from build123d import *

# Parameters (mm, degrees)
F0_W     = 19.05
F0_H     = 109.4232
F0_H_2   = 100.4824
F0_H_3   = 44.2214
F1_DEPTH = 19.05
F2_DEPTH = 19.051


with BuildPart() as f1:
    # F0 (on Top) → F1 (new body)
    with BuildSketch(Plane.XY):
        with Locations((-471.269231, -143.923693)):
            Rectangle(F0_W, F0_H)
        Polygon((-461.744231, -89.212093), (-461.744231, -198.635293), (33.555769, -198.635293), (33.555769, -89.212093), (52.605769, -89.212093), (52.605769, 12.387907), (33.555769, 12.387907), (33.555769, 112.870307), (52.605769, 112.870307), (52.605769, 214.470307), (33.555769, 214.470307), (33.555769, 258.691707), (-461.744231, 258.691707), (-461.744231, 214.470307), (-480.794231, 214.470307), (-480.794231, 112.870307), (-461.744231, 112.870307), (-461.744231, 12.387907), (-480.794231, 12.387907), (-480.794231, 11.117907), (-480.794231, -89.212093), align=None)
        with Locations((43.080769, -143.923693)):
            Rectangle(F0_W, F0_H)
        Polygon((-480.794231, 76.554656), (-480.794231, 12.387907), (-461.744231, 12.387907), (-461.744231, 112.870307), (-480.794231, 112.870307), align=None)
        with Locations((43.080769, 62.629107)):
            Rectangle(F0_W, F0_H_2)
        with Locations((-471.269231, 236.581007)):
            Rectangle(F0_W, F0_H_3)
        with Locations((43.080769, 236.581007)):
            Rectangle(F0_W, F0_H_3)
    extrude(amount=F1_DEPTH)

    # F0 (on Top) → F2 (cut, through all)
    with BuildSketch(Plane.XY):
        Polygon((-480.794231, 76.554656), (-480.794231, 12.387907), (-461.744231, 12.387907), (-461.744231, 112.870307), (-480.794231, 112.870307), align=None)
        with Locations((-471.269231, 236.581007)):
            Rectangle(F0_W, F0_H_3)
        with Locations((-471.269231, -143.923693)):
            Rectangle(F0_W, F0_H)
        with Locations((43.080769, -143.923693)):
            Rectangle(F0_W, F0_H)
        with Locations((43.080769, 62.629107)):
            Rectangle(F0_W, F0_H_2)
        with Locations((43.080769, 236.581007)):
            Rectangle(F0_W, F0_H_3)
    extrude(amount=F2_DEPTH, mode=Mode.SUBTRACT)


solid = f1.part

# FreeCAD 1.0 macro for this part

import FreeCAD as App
import Part
import Sketcher
from FreeCAD import Vector
Q = App.Units.Quantity

doc = App.newDocument("Part")
body = doc.addObject("PartDesign::Body", "Body")

sketch1 = body.newObject("Sketcher::SketchObject", "Sketch")
sketch1.AttachmentSupport = (doc.getObject("XY_Plane"), [""])
sketch1.MapMode = "FlatFace"
sketch1.addGeometry([
    Part.LineSegment(Vector(-480.794231, -198.635293, 0), Vector(52.605769, -198.635293, 0)),
    Part.LineSegment(Vector(52.605769, -198.635293, 0), Vector(52.605769, 258.691707, 0)),
    Part.LineSegment(Vector(52.605769, 258.691707, 0), Vector(-480.794231, 258.691707, 0)),
    Part.LineSegment(Vector(-480.794231, 258.691707, 0), Vector(-480.794231, -198.635293, 0)),
], False)
sketch1.addConstraint([
    Sketcher.Constraint("Coincident", 0, 2, 1, 1),
    Sketcher.Constraint("Coincident", 1, 2, 2, 1),
    Sketcher.Constraint("Coincident", 2, 2, 3, 1),
    Sketcher.Constraint("Coincident", 3, 2, 0, 1),
    Sketcher.Constraint("Horizontal", 0),
    Sketcher.Constraint("Vertical", 1),
    Sketcher.Constraint("Horizontal", 2),
    Sketcher.Constraint("Vertical", 3),
    Sketcher.Constraint("DistanceX", 0, 1, 0, 2, Q("21 in")),
    Sketcher.Constraint("DistanceY", 1, 1, 1, 2, Q("18.005 in")),
    Sketcher.Constraint("DistanceX", -1, 1, 0, 2, 52.605769),
    Sketcher.Constraint("DistanceY", 0, 2, -1, 1, 198.635293),
])
pad1 = body.newObject("PartDesign::Pad", "Pad")
pad1.Profile = sketch1
pad1.Length = Q("0.75 in")

sketch2 = body.newObject("Sketcher::SketchObject", "Sketch001")
sketch2.AttachmentSupport = (doc.getObject("XY_Plane"), [""])
sketch2.MapMode = "FlatFace"
sketch2.addGeometry([
    Part.LineSegment(Vector(-480.794231, 12.387907, 0), Vector(-461.744231, 12.387907, 0)),
    Part.LineSegment(Vector(-461.744231, 12.387907, 0), Vector(-461.744231, 112.870307, 0)),
    Part.LineSegment(Vector(-461.744231, 112.870307, 0), Vector(-480.794231, 112.870307, 0)),
    Part.LineSegment(Vector(-480.794231, 112.870307, 0), Vector(-480.794231, 12.387907, 0)),
    Part.LineSegment(Vector(-480.794231, 258.691707, 0), Vector(-480.794231, 214.470307, 0)),
    Part.LineSegment(Vector(-480.794231, 214.470307, 0), Vector(-461.744231, 214.470307, 0)),
    Part.LineSegment(Vector(-461.744231, 214.470307, 0), Vector(-461.744231, 258.691707, 0)),
    Part.LineSegment(Vector(-461.744231, 258.691707, 0), Vector(-480.794231, 258.691707, 0)),
    Part.LineSegment(Vector(-480.794231, -89.212093, 0), Vector(-480.794231, -198.635293, 0)),
    Part.LineSegment(Vector(-480.794231, -198.635293, 0), Vector(-461.744231, -198.635293, 0)),
    Part.LineSegment(Vector(-461.744231, -198.635293, 0), Vector(-461.744231, -89.212093, 0)),
    Part.LineSegment(Vector(-461.744231, -89.212093, 0), Vector(-480.794231, -89.212093, 0)),
    Part.LineSegment(Vector(33.555769, -89.212093, 0), Vector(33.555769, -198.635293, 0)),
    Part.LineSegment(Vector(33.555769, -198.635293, 0), Vector(52.605769, -198.635293, 0)),
    Part.LineSegment(Vector(52.605769, -198.635293, 0), Vector(52.605769, -89.212093, 0)),
    Part.LineSegment(Vector(52.605769, -89.212093, 0), Vector(33.555769, -89.212093, 0)),
    Part.LineSegment(Vector(33.555769, 112.870307, 0), Vector(33.555769, 12.387907, 0)),
    Part.LineSegment(Vector(33.555769, 12.387907, 0), Vector(52.605769, 12.387907, 0)),
    Part.LineSegment(Vector(52.605769, 12.387907, 0), Vector(52.605769, 112.870307, 0)),
    Part.LineSegment(Vector(52.605769, 112.870307, 0), Vector(33.555769, 112.870307, 0)),
    Part.LineSegment(Vector(33.555769, 258.691707, 0), Vector(33.555769, 214.470307, 0)),
    Part.LineSegment(Vector(33.555769, 214.470307, 0), Vector(52.605769, 214.470307, 0)),
    Part.LineSegment(Vector(52.605769, 214.470307, 0), Vector(52.605769, 258.691707, 0)),
    Part.LineSegment(Vector(52.605769, 258.691707, 0), Vector(33.555769, 258.691707, 0)),
], False)
sketch2.addConstraint([
    Sketcher.Constraint("Coincident", 0, 2, 1, 1),
    Sketcher.Constraint("Coincident", 1, 2, 2, 1),
    Sketcher.Constraint("Coincident", 2, 2, 3, 1),
    Sketcher.Constraint("Coincident", 3, 2, 0, 1),
    Sketcher.Constraint("Coincident", 4, 2, 5, 1),
    Sketcher.Constraint("Coincident", 5, 2, 6, 1),
    Sketcher.Constraint("Coincident", 6, 2, 7, 1),
    Sketcher.Constraint("Coincident", 7, 2, 4, 1),
    Sketcher.Constraint("Coincident", 8, 2, 9, 1),
    Sketcher.Constraint("Coincident", 9, 2, 10, 1),
    Sketcher.Constraint("Coincident", 10, 2, 11, 1),
    Sketcher.Constraint("Coincident", 11, 2, 8, 1),
    Sketcher.Constraint("Coincident", 12, 2, 13, 1),
    Sketcher.Constraint("Coincident", 13, 2, 14, 1),
    Sketcher.Constraint("Coincident", 14, 2, 15, 1),
    Sketcher.Constraint("Coincident", 15, 2, 12, 1),
    Sketcher.Constraint("Coincident", 16, 2, 17, 1),
    Sketcher.Constraint("Coincident", 17, 2, 18, 1),
    Sketcher.Constraint("Coincident", 18, 2, 19, 1),
    Sketcher.Constraint("Coincident", 19, 2, 16, 1),
    Sketcher.Constraint("Coincident", 20, 2, 21, 1),
    Sketcher.Constraint("Coincident", 21, 2, 22, 1),
    Sketcher.Constraint("Coincident", 22, 2, 23, 1),
    Sketcher.Constraint("Coincident", 23, 2, 20, 1),
    Sketcher.Constraint("Horizontal", 0),
    Sketcher.Constraint("Vertical", 1),
    Sketcher.Constraint("Horizontal", 2),
    Sketcher.Constraint("Vertical", 3),
    Sketcher.Constraint("Vertical", 4),
    Sketcher.Constraint("Horizontal", 5),
    Sketcher.Constraint("Vertical", 6),
    Sketcher.Constraint("Horizontal", 7),
    Sketcher.Constraint("Vertical", 8),
    Sketcher.Constraint("Horizontal", 9),
    Sketcher.Constraint("Vertical", 10),
    Sketcher.Constraint("Horizontal", 11),
    Sketcher.Constraint("Vertical", 12),
    Sketcher.Constraint("Horizontal", 13),
    Sketcher.Constraint("Vertical", 14),
    Sketcher.Constraint("Horizontal", 15),
    Sketcher.Constraint("Vertical", 16),
    Sketcher.Constraint("Horizontal", 17),
    Sketcher.Constraint("Vertical", 18),
    Sketcher.Constraint("Horizontal", 19),
    Sketcher.Constraint("Vertical", 20),
    Sketcher.Constraint("Horizontal", 21),
    Sketcher.Constraint("Vertical", 22),
    Sketcher.Constraint("Horizontal", 23),
    Sketcher.Constraint("Horizontal", 9, 2, 12, 2),
    Sketcher.Constraint("Horizontal", 11, 2, 14, 2),
    Sketcher.Constraint("Horizontal", 3, 2, 16, 2),
    Sketcher.Constraint("Horizontal", 2, 2, 18, 2),
    Sketcher.Constraint("Horizontal", 5, 2, 20, 2),
    Sketcher.Constraint("Horizontal", 7, 2, 22, 2),
    Sketcher.Constraint("Vertical", 3, 2, 4, 2),
    Sketcher.Constraint("Vertical", 1, 2, 5, 2),
    Sketcher.Constraint("Vertical", 7, 2, 8, 2),
    Sketcher.Constraint("Vertical", 6, 2, 9, 2),
    Sketcher.Constraint("Vertical", 15, 2, 16, 2),
    Sketcher.Constraint("Vertical", 14, 2, 17, 2),
    Sketcher.Constraint("Vertical", 19, 2, 20, 2),
    Sketcher.Constraint("Vertical", 18, 2, 21, 2),
    Sketcher.Constraint("Equal", 11, 13),
    Sketcher.Constraint("DistanceY", 2, 2, 4, 2, Q("4 in")),
    Sketcher.Constraint("DistanceY", 10, 2, 0, 2, Q("4 in")),
    Sketcher.Constraint("DistanceX", 8, 2, 13, 2, Q("21 in")),
    Sketcher.Constraint("DistanceX", 0, 1, 0, 2, Q("0.75 in")),
    Sketcher.Constraint("DistanceY", 1, 1, 1, 2, Q("3.956 in")),
    Sketcher.Constraint("DistanceY", 4, 2, 4, 1, Q("1.741 in")),
    Sketcher.Constraint("DistanceY", 8, 2, 8, 1, Q("4.308 in")),
    Sketcher.Constraint("DistanceX", 0, 2, -1, 1, 461.744231),
    Sketcher.Constraint("DistanceY", -1, 1, 0, 2, 12.387907),
])
pocket1 = body.newObject("PartDesign::Pocket", "Pocket")
pocket1.Profile = sketch2
pocket1.Type = "ThroughAll"
pocket1.Reversed = True

doc.recompute()
